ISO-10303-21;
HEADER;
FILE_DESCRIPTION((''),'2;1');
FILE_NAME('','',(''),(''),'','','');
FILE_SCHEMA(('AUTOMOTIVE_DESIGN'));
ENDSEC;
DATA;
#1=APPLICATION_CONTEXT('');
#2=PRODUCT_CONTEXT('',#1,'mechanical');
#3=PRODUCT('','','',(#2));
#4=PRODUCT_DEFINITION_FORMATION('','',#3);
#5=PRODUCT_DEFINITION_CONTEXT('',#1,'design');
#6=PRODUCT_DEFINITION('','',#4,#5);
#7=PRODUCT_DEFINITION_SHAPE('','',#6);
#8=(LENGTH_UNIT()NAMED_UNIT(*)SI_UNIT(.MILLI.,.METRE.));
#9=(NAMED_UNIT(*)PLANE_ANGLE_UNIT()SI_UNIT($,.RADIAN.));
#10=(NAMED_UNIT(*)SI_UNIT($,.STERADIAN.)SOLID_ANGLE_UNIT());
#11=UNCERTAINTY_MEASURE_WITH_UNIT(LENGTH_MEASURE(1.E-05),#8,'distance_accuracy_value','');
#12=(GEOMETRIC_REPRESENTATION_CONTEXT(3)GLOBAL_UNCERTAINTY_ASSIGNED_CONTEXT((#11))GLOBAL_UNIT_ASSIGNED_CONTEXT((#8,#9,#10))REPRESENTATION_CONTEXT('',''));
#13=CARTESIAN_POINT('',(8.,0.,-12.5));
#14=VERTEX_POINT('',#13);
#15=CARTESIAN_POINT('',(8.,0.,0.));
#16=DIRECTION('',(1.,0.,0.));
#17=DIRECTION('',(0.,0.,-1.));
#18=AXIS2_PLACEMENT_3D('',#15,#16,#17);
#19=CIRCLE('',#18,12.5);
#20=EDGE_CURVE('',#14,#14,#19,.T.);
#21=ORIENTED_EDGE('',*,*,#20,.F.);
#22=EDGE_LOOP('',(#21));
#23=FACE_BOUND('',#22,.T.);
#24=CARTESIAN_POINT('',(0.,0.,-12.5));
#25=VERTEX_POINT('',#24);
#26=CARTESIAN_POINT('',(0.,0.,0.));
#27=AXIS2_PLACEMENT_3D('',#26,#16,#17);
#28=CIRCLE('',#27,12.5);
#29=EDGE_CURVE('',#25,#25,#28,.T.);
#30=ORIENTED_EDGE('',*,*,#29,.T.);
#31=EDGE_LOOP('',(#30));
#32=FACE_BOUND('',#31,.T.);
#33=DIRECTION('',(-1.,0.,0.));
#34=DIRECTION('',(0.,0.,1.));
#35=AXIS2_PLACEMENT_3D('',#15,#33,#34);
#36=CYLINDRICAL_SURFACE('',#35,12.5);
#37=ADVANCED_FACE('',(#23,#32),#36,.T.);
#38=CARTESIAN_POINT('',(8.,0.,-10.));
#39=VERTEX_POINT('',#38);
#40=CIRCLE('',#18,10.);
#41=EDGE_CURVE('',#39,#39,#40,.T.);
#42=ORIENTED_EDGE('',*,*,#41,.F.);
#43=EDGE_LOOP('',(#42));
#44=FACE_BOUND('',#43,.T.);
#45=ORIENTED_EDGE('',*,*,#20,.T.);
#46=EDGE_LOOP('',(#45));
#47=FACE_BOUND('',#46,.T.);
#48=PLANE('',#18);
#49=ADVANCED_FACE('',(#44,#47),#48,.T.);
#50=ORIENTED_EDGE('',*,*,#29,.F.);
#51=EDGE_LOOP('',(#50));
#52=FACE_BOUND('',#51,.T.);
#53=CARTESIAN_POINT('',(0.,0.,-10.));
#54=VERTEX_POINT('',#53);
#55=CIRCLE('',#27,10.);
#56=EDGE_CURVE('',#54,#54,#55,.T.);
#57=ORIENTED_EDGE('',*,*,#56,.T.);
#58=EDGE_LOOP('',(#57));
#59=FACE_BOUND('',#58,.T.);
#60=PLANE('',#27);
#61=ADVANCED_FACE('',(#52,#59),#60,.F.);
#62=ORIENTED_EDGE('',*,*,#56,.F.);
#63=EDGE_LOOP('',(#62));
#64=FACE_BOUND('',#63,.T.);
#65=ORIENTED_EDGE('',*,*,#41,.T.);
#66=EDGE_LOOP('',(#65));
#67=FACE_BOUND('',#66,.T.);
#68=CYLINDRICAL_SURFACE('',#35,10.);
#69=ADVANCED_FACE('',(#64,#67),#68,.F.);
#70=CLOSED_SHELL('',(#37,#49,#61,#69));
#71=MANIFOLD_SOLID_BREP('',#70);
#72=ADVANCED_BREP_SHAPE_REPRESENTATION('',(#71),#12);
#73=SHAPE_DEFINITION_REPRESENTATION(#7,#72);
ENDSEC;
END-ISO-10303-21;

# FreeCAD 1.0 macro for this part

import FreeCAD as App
import Part
import Sketcher
Q = App.Units.Quantity

doc = App.newDocument("Part")
body = doc.addObject("PartDesign::Body", "Body")

# Sketch on YZ plane
sketch1 = doc.addObject("Sketcher::SketchObject", "Sketch")
body.addObject(sketch1)
sketch1.AttachmentSupport = (doc.YZ_Plane, [""])
sketch1.MapMode = "FlatFace"
sketch1.addGeometry([
    Part.Circle(App.Vector(0, 0, 0), App.Vector(0, 0, 1), 12),
    Part.Circle(App.Vector(0, 0, 0), App.Vector(0, 0, 1), 10),
], False)
sketch1.addConstraint([
    Sketcher.Constraint("Coincident", 0, 3, -1, 1),
    Sketcher.Constraint("Coincident", 1, 3, -1, 1),
    Sketcher.Constraint("Diameter", 0, Q("25 mm")),
    Sketcher.Constraint("Diameter", 1, Q("20 mm")),
])
pad1 = doc.addObject("PartDesign::Pad", "Pad")
body.addObject(pad1)
pad1.Profile = sketch1
pad1.Length = 8

doc.recompute()
